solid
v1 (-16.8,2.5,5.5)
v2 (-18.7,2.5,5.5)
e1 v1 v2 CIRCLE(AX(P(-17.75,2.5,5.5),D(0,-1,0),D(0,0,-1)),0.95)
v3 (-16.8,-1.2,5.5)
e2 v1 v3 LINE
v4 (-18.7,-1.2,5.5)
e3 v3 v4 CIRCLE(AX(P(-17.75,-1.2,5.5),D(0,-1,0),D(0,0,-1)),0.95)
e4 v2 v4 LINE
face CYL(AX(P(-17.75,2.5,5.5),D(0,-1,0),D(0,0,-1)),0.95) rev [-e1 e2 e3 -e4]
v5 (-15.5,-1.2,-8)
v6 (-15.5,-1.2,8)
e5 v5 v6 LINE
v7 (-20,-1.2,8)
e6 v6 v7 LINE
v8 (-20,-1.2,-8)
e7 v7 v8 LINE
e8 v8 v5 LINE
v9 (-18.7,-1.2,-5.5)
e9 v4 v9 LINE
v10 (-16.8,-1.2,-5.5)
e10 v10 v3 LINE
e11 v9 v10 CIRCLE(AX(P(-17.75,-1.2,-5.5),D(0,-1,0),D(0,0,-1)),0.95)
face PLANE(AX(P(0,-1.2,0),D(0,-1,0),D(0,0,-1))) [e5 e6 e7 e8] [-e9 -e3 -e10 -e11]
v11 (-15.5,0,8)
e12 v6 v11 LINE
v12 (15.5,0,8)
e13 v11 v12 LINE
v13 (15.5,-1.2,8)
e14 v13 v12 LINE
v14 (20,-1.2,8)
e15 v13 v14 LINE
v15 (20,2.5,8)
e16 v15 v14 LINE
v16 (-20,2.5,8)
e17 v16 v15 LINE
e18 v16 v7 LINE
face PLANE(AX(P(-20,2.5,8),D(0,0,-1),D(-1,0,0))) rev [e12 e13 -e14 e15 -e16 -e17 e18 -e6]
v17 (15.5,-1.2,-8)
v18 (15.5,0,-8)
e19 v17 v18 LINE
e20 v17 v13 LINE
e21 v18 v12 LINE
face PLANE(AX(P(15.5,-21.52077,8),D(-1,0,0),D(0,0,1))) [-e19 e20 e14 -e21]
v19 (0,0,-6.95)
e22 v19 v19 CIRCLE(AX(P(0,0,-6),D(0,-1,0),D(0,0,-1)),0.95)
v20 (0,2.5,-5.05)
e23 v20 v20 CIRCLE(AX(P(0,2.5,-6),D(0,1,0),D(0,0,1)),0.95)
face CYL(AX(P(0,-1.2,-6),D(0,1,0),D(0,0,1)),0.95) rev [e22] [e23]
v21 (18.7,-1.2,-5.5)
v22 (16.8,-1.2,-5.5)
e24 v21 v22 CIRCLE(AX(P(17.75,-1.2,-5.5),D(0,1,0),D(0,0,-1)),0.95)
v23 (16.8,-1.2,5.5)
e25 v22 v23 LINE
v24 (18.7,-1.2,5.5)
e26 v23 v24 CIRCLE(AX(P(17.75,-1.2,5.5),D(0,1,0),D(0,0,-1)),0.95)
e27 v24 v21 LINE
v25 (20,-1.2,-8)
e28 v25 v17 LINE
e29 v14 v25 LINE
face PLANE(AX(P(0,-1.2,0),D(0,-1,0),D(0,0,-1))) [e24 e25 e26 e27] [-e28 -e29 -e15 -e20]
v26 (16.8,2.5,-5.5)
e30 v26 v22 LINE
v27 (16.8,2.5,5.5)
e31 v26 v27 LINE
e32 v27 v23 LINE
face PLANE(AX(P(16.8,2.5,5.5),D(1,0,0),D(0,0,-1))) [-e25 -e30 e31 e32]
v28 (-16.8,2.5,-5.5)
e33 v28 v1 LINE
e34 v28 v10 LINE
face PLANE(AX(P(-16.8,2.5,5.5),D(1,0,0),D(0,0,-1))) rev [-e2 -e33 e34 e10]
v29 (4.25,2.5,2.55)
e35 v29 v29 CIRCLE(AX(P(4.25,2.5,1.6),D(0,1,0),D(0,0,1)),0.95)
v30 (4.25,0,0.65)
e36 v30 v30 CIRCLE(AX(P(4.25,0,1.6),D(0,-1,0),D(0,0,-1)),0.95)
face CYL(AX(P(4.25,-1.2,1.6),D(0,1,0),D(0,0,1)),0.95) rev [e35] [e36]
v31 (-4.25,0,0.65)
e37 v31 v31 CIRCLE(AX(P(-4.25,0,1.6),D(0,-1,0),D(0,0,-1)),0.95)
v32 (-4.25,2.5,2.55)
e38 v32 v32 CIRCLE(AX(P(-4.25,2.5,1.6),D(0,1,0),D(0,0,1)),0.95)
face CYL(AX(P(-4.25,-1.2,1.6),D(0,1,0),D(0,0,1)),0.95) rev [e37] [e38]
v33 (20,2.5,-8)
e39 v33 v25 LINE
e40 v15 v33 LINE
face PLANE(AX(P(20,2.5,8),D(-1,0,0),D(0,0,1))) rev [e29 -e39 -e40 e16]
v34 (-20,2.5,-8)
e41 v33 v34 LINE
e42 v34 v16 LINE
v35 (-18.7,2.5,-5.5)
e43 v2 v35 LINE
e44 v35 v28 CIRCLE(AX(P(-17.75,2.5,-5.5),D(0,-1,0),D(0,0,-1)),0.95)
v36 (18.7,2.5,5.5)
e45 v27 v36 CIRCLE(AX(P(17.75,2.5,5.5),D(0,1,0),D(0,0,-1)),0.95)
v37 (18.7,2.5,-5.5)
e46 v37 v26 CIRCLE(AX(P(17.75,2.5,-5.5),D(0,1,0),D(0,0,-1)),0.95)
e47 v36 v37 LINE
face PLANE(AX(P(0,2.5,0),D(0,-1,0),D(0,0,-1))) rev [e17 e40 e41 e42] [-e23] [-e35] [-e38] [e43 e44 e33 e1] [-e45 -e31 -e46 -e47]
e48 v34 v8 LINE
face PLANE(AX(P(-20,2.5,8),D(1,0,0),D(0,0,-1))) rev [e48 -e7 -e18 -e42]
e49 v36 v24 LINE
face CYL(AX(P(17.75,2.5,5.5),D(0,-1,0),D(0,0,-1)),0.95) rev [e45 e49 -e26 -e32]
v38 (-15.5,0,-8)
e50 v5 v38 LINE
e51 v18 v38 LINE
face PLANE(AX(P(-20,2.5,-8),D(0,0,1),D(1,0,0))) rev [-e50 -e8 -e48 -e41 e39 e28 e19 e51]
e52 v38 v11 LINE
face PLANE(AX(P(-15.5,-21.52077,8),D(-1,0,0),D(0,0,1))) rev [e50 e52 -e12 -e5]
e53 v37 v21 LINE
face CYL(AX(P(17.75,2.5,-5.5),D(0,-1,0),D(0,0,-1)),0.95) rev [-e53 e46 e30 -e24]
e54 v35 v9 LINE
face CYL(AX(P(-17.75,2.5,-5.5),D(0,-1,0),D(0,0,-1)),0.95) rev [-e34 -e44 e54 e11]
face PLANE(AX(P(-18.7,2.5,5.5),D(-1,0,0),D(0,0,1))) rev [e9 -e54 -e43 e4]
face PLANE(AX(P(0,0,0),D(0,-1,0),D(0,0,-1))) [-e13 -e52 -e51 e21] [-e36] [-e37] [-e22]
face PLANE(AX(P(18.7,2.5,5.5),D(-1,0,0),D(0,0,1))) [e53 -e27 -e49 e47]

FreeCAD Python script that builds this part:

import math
import FreeCAD as App
import Part
import Sketcher
Q = App.Units.Quantity

doc = App.newDocument("Part")
params = doc.addObject("Spreadsheet::Sheet", "Params")
for row, (alias, value) in enumerate([
    ("sketch1_width", "40 mm"),
    ("sketch1_height", "16 mm"),
    ("pad1_length", "2.5 mm"),
    ("sketch2_height", "16 mm"),
    ("sketch2_width", "4.5 mm"),
    ("pad2_length", "1.2 mm"),
    ("sketch3_height", "11 mm"),
    ("sketch3_radius", "0.95 mm"),
    ("sketch4_diameter", "1.9 mm"),
], start=1):
    params.set(f"A{row}", alias)
    params.set(f"B{row}", "=" + value)
    params.setAlias(f"B{row}", alias)

body = doc.addObject("PartDesign::Body", "Body")

# Sketch on XZ plane
sketch1 = body.newObject("Sketcher::SketchObject", "Sketch")
sketch1.AttachmentSupport = (doc.getObject("XZ_Plane"), [""])
sketch1.MapMode = "FlatFace"
sketch1.addGeometry([
    Part.LineSegment(App.Vector(-20, -8, 0), App.Vector(-20, 8, 0)),
    Part.LineSegment(App.Vector(-20, 8, 0), App.Vector(20, 8, 0)),
    Part.LineSegment(App.Vector(20, 8, 0), App.Vector(20, -8, 0)),
    Part.LineSegment(App.Vector(20, -8, 0), App.Vector(-20, -8, 0)),
], False)
sketch1.addConstraint([
    Sketcher.Constraint("Coincident", 0, 2, 1, 1),
    Sketcher.Constraint("Coincident", 1, 2, 2, 1),
    Sketcher.Constraint("Coincident", 2, 2, 3, 1),
    Sketcher.Constraint("Coincident", 3, 2, 0, 1),
    Sketcher.Constraint("Vertical", 0),
    Sketcher.Constraint("Horizontal", 1),
    Sketcher.Constraint("Vertical", 2),
    Sketcher.Constraint("Horizontal", 3),
    Sketcher.Constraint("Symmetric", 0, 2, 2, 2, -1, 1),
    Sketcher.Constraint("DistanceX", 1, 1, 1, 2, Q("40 mm")),
    Sketcher.Constraint("DistanceY", 0, 1, 0, 2, Q("16 mm")),
])
sketch1.setExpression("Constraints[9]", "Params.sketch1_width")
sketch1.setExpression("Constraints[10]", "Params.sketch1_height")
pad1 = body.newObject("PartDesign::Pad", "Pad")
pad1.Profile = sketch1
pad1.setExpression("Length", "Params.pad1_length")
pad1.Reversed = True

# Sketch on XZ plane
sketch2 = body.newObject("Sketcher::SketchObject", "Sketch001")
sketch2.AttachmentSupport = (doc.getObject("XZ_Plane"), [""])
sketch2.MapMode = "FlatFace"
sketch2.addGeometry([
    Part.LineSegment(App.Vector(-20, 8, 0), App.Vector(-20, -8, 0)),
    Part.LineSegment(App.Vector(-20, -8, 0), App.Vector(-15.5, -8, 0)),
    Part.LineSegment(App.Vector(-15.5, -8, 0), App.Vector(-15.5, 8, 0)),
    Part.LineSegment(App.Vector(-15.5, 8, 0), App.Vector(-20, 8, 0)),
], False)
sketch2.addConstraint([
    Sketcher.Constraint("Coincident", 0, 2, 1, 1),
    Sketcher.Constraint("Coincident", 1, 2, 2, 1),
    Sketcher.Constraint("Coincident", 2, 2, 3, 1),
    Sketcher.Constraint("Coincident", 3, 2, 0, 1),
    Sketcher.Constraint("Vertical", 0),
    Sketcher.Constraint("Horizontal", 1),
    Sketcher.Constraint("Vertical", 2),
    Sketcher.Constraint("Horizontal", 3),
    Sketcher.Constraint("DistanceY", 0, 2, 0, 1, Q("16 mm")),
    Sketcher.Constraint("DistanceX", 1, 1, 1, 2, Q("4.5 mm")),
    Sketcher.Constraint("DistanceX", 0, 2, -1, 1, Q("20 mm")),
    Sketcher.Constraint("DistanceY", 0, 2, -1, 1, Q("8 mm")),
])
sketch2.setExpression("Constraints[8]", "Params.sketch2_height")
sketch2.setExpression("Constraints[9]", "Params.sketch2_width")
pad2 = body.newObject("PartDesign::Pad", "Pad001")
pad2.Profile = sketch2
pad2.setExpression("Length", "Params.pad2_length")

# Sketch on XZ plane
sketch3 = body.newObject("Sketcher::SketchObject", "Sketch002")
sketch3.AttachmentSupport = (doc.getObject("XZ_Plane"), [""])
sketch3.MapMode = "FlatFace"
sketch3.AttachmentOffset = App.Placement(App.Vector(0, 0, 1.2), App.Rotation())
sketch3.addGeometry([
    Part.LineSegment(App.Vector(-16.8, -5.5, 0), App.Vector(-16.8, 5.5, 0)),
    Part.ArcOfCircle(Part.Circle(App.Vector(-17.75, 5.5, 0), App.Vector(0, 0, 1), 0.95), math.radians(0), math.radians(180)),
    Part.LineSegment(App.Vector(-18.7, 5.5, 0), App.Vector(-18.7, -5.5, 0)),
    Part.ArcOfCircle(Part.Circle(App.Vector(-17.75, -5.5, 0), App.Vector(0, 0, 1), 0.95), math.radians(180), math.radians(360)),
], False)
sketch3.addConstraint([
    Sketcher.Constraint("Tangent", 0, 2, 1, 1),
    Sketcher.Constraint("Tangent", 1, 2, 2, 1),
    Sketcher.Constraint("Tangent", 2, 2, 3, 1),
    Sketcher.Constraint("Tangent", 3, 2, 0, 1),
    Sketcher.Constraint("Vertical", 0),
    Sketcher.Constraint("Vertical", 2),
    Sketcher.Constraint("DistanceY", 0, 1, 0, 2, Q("11 mm")),
    Sketcher.Constraint("Radius", 1, Q("0.95 mm")),
    Sketcher.Constraint("DistanceY", -1, 1, 1, 3, Q("5.5 mm")),
    Sketcher.Constraint("DistanceX", 0, 2, -1, 1, Q("16.8 mm")),
])
sketch3.setExpression("Constraints[6]", "Params.sketch3_height")
sketch3.setExpression("Constraints[7]", "Params.sketch3_radius")
pocket1 = body.newObject("PartDesign::Pocket", "Pocket")
pocket1.Profile = sketch3
pocket1.Type = "ThroughAll"
doc.recompute()

mirrored = body.newObject("PartDesign::Mirrored", "Mirrored")
mirrored.Originals = [pad2, pocket1]
mirrored.MirrorPlane = (doc.getObject("YZ_Plane"), [""])
body.Tip = mirrored

# Sketch on XZ plane
sketch4 = body.newObject("Sketcher::SketchObject", "Sketch003")
sketch4.AttachmentSupport = (doc.getObject("XZ_Plane"), [""])
sketch4.MapMode = "FlatFace"
sketch4.AttachmentOffset = App.Placement(App.Vector(0, 0, -2.5), App.Rotation())
sketch4.addGeometry([
    Part.Circle(App.Vector(4.25, 1.6, 0), App.Vector(0, 0, 1), 0.95),
    Part.Circle(App.Vector(-4.25, 1.6, 0), App.Vector(0, 0, 1), 0.95),
    Part.Circle(App.Vector(0, -6, 0), App.Vector(0, 0, 1), 0.95),
], False)
sketch4.addConstraint([
    Sketcher.Constraint("Equal", 0, 1),
    Sketcher.Constraint("Equal", 1, 2),
    Sketcher.Constraint("Symmetric", 0, 3, 1, 3, -2),
    Sketcher.Constraint("PointOnObject", 2, 3, -2),
    Sketcher.Constraint("Diameter", 0, Q("1.9 mm")),
    Sketcher.Constraint("DistanceY", 2, 3, -1, 1, Q("6 mm")),
    Sketcher.Constraint("DistanceY", -1, 1, 0, 3, Q("1.6 mm")),
    Sketcher.Constraint("DistanceX", 1, 3, 0, 3, Q("8.5 mm")),
])
sketch4.setExpression("Constraints[4]", "Params.sketch4_diameter")
pocket2 = body.newObject("PartDesign::Pocket", "Pocket001")
pocket2.Profile = sketch4
pocket2.Type = "ThroughAll"
pocket2.Reversed = True

doc.recompute()
